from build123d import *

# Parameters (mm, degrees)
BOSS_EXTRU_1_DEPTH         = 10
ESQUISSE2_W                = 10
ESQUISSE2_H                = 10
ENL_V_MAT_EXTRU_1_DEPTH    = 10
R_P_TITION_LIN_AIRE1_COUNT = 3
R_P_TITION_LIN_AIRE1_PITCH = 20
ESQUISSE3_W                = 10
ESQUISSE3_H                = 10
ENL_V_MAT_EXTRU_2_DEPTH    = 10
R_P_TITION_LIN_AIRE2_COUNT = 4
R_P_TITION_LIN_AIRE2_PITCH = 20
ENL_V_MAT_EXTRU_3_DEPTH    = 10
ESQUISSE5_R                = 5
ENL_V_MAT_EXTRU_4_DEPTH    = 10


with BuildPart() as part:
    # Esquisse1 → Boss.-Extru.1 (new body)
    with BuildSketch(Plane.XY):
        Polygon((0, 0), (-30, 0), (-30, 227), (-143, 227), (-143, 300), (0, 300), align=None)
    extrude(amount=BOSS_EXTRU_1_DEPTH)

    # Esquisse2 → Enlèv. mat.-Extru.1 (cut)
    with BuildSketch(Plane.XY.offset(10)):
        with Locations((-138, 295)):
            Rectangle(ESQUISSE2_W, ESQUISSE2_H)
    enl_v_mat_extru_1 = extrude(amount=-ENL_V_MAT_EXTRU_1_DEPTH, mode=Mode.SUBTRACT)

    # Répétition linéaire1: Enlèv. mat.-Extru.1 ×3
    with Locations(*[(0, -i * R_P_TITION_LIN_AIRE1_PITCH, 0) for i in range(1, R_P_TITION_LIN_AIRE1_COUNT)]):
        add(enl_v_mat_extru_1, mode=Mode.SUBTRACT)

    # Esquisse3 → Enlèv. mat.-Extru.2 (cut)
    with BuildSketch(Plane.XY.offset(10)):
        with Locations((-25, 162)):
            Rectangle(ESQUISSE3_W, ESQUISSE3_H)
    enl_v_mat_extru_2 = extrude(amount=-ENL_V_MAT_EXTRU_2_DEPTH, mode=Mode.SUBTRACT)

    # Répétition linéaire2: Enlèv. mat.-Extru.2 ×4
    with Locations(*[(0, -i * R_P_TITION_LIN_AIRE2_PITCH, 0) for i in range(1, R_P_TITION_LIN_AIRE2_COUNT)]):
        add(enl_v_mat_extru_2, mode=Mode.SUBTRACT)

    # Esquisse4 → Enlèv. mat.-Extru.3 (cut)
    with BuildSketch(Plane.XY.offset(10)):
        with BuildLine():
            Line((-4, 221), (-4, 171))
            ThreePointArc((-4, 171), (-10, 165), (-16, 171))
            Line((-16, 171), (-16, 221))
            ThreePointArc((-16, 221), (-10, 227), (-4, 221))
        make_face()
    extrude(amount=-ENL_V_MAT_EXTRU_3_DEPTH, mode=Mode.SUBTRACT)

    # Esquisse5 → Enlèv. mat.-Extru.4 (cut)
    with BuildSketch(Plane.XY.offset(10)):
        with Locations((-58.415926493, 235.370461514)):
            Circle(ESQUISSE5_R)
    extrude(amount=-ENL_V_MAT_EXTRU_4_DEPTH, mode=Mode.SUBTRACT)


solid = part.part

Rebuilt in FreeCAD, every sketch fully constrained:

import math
import FreeCAD as App
import Part
import Sketcher

V = App.Vector


def add_polygon(sketch, points):
    """Adds a closed chain of lines whose ends are joined by coincident constraints."""
    first, n = sketch.GeometryCount, len(points)
    for a, b in zip(points, points[1:] + points[:1]):
        sketch.addGeometry(Part.LineSegment(App.Vector(*a, 0), App.Vector(*b, 0)), False)
    for i in range(n):
        sketch.addConstraint(Sketcher.Constraint("Coincident", first + i, 2, first + (i + 1) % n, 1))

doc = App.newDocument("Part")
body = doc.addObject("PartDesign::Body", "Body")

sketch1 = body.newObject("Sketcher::SketchObject", "Sketch")
sketch1.AttachmentSupport = (doc.getObject("XY_Plane"), [""])
sketch1.MapMode = "FlatFace"
add_polygon(sketch1, [(-30, 0), (0, 0), (0, 300), (-143, 300), (-143, 227), (-30, 227)])
sketch1.addConstraint([
    Sketcher.Constraint("Horizontal", 0),
    Sketcher.Constraint("Vertical", 1),
    Sketcher.Constraint("Horizontal", 2),
    Sketcher.Constraint("Vertical", 3),
    Sketcher.Constraint("Horizontal", 4),
    Sketcher.Constraint("Vertical", 5),
    Sketcher.Constraint("Coincident", 0, 2, -1, 1),
    Sketcher.Constraint("DistanceX", 0, 1, 0, 2, 30.0),
    Sketcher.Constraint("DistanceX", 2, 2, 2, 1, 143.0),
    Sketcher.Constraint("DistanceY", 1, 1, 1, 2, 300.0),
    Sketcher.Constraint("DistanceY", 3, 2, 3, 1, 73.0),
])
pad1 = body.newObject("PartDesign::Pad", "Pad")
pad1.Profile = sketch1
pad1.Length = 10

sketch2 = body.newObject("Sketcher::SketchObject", "Sketch001")
sketch2.AttachmentSupport = (doc.getObject("XY_Plane"), [""])
sketch2.MapMode = "FlatFace"
sketch2.AttachmentOffset = App.Placement(V(0, 0, 10), App.Rotation())
add_polygon(sketch2, [(-143, 300), (-143, 290), (-133, 290), (-133, 300)])
sketch2.addConstraint([
    Sketcher.Constraint("Vertical", 0),
    Sketcher.Constraint("Horizontal", 1),
    Sketcher.Constraint("Vertical", 2),
    Sketcher.Constraint("Horizontal", 3),
    Sketcher.Constraint("Equal", 3, 0),
    Sketcher.Constraint("DistanceX", 1, 1, 1, 2, 10.0),
    Sketcher.Constraint("DistanceX", 0, 2, -1, 1, 143.0),
    Sketcher.Constraint("DistanceY", -1, 1, 0, 2, 290.0),
])
pocket1 = body.newObject("PartDesign::Pocket", "Pocket")
pocket1.Profile = sketch2
pocket1.Length = 10
doc.recompute()

linearpattern = body.newObject("PartDesign::LinearPattern", "LinearPattern")
linearpattern.Originals = [pocket1]
linearpattern.Direction = (doc.getObject("Y_Axis"), [""])
linearpattern.Mode = "offset"
linearpattern.Offset = 20
linearpattern.Occurrences = 3
linearpattern.Reversed = True
body.Tip = linearpattern

sketch3 = body.newObject("Sketcher::SketchObject", "Sketch002")
sketch3.AttachmentSupport = (doc.getObject("XY_Plane"), [""])
sketch3.MapMode = "FlatFace"
sketch3.AttachmentOffset = App.Placement(V(0, 0, 10), App.Rotation())
add_polygon(sketch3, [(-30, 167), (-30, 157), (-20, 157), (-20, 167)])
sketch3.addConstraint([
    Sketcher.Constraint("Vertical", 0),
    Sketcher.Constraint("Horizontal", 1),
    Sketcher.Constraint("Vertical", 2),
    Sketcher.Constraint("Horizontal", 3),
    Sketcher.Constraint("Equal", 3, 0),
    Sketcher.Constraint("DistanceX", 1, 1, 1, 2, 10.0),
    Sketcher.Constraint("DistanceX", 0, 2, -1, 1, 30.0),
    Sketcher.Constraint("DistanceY", -1, 1, 0, 2, 157.0),
])
pocket2 = body.newObject("PartDesign::Pocket", "Pocket001")
pocket2.Profile = sketch3
pocket2.Length = 10
doc.recompute()

linearpattern2 = body.newObject("PartDesign::LinearPattern", "LinearPattern001")
linearpattern2.Originals = [pocket2]
linearpattern2.Direction = (doc.getObject("Y_Axis"), [""])
linearpattern2.Mode = "offset"
linearpattern2.Offset = 20
linearpattern2.Occurrences = 4
linearpattern2.Reversed = True
body.Tip = linearpattern2

sketch4 = body.newObject("Sketcher::SketchObject", "Sketch003")
sketch4.AttachmentSupport = (doc.getObject("XY_Plane"), [""])
sketch4.MapMode = "FlatFace"
sketch4.AttachmentOffset = App.Placement(V(0, 0, 10), App.Rotation())
sketch4.addGeometry([
    Part.LineSegment(V(-4, 171, 0), V(-4, 221, 0)),
    Part.ArcOfCircle(Part.Circle(V(-10, 221, 0), V(0, 0, 1), 6), math.radians(0), math.radians(180)),
    Part.LineSegment(V(-16, 221, 0), V(-16, 171, 0)),
    Part.ArcOfCircle(Part.Circle(V(-10, 171, 0), V(0, 0, 1), 6), math.radians(180), math.radians(360)),
], False)
sketch4.addConstraint([
    Sketcher.Constraint("Tangent", 0, 2, 1, 1),
    Sketcher.Constraint("Tangent", 1, 2, 2, 1),
    Sketcher.Constraint("Tangent", 2, 2, 3, 1),
    Sketcher.Constraint("Tangent", 3, 2, 0, 1),
    Sketcher.Constraint("Vertical", 0),
    Sketcher.Constraint("Vertical", 2),
    Sketcher.Constraint("Radius", 1, 6.0),
    Sketcher.Constraint("DistanceY", 0, 1, 0, 2, 50.0),
    Sketcher.Constraint("DistanceX", 1, 3, -1, 1, 10.0),
    Sketcher.Constraint("DistanceY", -1, 1, 1, 3, 221.0),
])
pocket3 = body.newObject("PartDesign::Pocket", "Pocket002")
pocket3.Profile = sketch4
pocket3.Length = 10

sketch5 = body.newObject("Sketcher::SketchObject", "Sketch004")
sketch5.AttachmentSupport = (doc.getObject("XY_Plane"), [""])
sketch5.MapMode = "FlatFace"
sketch5.AttachmentOffset = App.Placement(V(0, 0, 10), App.Rotation())
sketch5.addGeometry(Part.Circle(V(-58.415926, 235.370462, 0), V(0, 0, 1), 5), False)
sketch5.addConstraint([
    Sketcher.Constraint("Diameter", 0, 10.0),
    Sketcher.Constraint("DistanceY", -1, 1, 0, 3, 235.370462),
    Sketcher.Constraint("DistanceX", 0, 3, -1, 1, 58.415926),
])
pocket4 = body.newObject("PartDesign::Pocket", "Pocket003")
pocket4.Profile = sketch5
pocket4.Length = 10

doc.recompute()
